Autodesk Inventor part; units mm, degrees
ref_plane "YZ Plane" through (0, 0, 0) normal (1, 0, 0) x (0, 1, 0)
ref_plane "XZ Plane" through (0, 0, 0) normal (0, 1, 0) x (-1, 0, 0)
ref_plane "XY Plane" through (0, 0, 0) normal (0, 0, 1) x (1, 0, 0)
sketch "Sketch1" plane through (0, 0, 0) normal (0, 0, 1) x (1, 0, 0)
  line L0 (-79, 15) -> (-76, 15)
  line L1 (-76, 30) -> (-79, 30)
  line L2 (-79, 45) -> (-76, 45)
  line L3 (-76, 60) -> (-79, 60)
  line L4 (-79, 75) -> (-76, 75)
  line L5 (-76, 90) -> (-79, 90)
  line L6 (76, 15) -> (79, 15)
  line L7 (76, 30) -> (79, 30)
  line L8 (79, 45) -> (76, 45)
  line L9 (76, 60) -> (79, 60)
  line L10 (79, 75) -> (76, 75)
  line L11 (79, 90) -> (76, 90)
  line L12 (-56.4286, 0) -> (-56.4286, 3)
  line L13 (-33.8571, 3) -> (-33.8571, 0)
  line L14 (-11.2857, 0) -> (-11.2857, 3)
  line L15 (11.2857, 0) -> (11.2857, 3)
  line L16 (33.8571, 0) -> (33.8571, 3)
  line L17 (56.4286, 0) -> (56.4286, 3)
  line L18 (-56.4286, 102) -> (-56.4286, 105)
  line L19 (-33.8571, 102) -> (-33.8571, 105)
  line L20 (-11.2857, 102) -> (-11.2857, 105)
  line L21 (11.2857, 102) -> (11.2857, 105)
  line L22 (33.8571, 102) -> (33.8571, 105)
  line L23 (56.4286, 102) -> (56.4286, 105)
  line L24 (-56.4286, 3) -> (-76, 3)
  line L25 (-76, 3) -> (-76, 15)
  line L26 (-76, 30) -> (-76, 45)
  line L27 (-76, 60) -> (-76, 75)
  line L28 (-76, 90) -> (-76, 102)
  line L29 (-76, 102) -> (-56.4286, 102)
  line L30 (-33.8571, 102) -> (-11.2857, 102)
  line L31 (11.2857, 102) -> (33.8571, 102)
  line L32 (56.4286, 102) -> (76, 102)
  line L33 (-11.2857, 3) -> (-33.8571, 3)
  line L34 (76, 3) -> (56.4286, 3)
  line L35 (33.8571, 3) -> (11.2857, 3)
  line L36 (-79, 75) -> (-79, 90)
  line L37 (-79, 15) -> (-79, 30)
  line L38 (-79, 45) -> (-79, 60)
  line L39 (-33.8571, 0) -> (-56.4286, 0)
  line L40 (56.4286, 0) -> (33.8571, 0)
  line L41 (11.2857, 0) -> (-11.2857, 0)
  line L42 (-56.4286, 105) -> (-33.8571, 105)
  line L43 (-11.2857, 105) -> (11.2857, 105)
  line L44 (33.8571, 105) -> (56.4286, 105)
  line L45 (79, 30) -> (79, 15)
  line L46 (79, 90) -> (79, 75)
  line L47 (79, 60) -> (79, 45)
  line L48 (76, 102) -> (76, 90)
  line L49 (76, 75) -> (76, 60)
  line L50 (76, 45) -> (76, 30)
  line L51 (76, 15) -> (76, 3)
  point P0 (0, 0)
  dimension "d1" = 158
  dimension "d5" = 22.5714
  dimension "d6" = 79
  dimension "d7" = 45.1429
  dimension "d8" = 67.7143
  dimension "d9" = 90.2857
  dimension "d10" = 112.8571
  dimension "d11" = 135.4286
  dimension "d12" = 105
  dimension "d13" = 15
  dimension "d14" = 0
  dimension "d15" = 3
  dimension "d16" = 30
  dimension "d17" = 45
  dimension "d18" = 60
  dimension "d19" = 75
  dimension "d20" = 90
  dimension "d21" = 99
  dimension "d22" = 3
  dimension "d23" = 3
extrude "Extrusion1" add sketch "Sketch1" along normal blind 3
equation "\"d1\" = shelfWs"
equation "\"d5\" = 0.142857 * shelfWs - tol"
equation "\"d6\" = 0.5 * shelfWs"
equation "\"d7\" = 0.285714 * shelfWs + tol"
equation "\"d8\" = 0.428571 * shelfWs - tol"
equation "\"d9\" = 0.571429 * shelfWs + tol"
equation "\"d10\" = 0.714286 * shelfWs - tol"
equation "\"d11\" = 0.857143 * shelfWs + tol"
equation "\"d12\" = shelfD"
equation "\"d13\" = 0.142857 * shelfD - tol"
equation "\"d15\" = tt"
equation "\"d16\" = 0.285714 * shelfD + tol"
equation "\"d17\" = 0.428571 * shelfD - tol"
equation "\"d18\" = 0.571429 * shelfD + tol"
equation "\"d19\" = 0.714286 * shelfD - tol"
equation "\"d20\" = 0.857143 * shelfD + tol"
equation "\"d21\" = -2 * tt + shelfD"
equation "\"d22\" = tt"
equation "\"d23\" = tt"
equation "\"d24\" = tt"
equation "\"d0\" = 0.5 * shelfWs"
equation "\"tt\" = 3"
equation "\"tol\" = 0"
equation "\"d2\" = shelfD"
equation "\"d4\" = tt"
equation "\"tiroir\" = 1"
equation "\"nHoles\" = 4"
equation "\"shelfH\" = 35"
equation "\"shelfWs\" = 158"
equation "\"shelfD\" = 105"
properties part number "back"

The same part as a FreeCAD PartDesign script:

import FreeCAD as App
import Part
import Sketcher
Q = App.Units.Quantity


def add_polygon(sketch, points):
    """Adds a closed chain of lines whose ends are joined by coincident constraints."""
    first, n = sketch.GeometryCount, len(points)
    for a, b in zip(points, points[1:] + points[:1]):
        sketch.addGeometry(Part.LineSegment(App.Vector(*a, 0), App.Vector(*b, 0)), False)
    for i in range(n):
        sketch.addConstraint(Sketcher.Constraint("Coincident", first + i, 2, first + (i + 1) % n, 1))

doc = App.newDocument("Part")
body = doc.addObject("PartDesign::Body", "Body")

# Sketch on XY plane
sketch1 = body.newObject("Sketcher::SketchObject", "Sketch")
sketch1.AttachmentSupport = (doc.getObject("XY_Plane"), [""])
sketch1.MapMode = "FlatFace"
add_polygon(sketch1, [(-79, 30), (-79, 15), (-76, 15), (-76, 3), (-56.4286, 3), (-56.4286, 0), (-33.8571, 0), (-33.8571, 3), (-11.2857, 3), (-11.2857, 0), (11.2857, 0), (11.2857, 3), (33.8571, 3), (33.8571, 0), (56.4286, 0), (56.4286, 3), (76, 3), (76, 15), (79, 15), (79, 30), (76, 30), (76, 45), (79, 45), (79, 60), (76, 60), (76, 75), (79, 75), (79, 90), (76, 90), (76, 102), (56.4286, 102), (56.4286, 105), (33.8571, 105), (33.8571, 102), (11.2857, 102), (11.2857, 105), (-11.2857, 105), (-11.2857, 102), (-33.8571, 102), (-33.8571, 105), (-56.4286, 105), (-56.4286, 102), (-76, 102), (-76, 90), (-79, 90), (-79, 75), (-76, 75), (-76, 60), (-79, 60), (-79, 45), (-76, 45), (-76, 30)])  # lines 0-51
sketch1.addConstraint([
    Sketcher.Constraint("Vertical", 0),
    Sketcher.Constraint("Horizontal", 1),
    Sketcher.Constraint("Vertical", 2),
    Sketcher.Constraint("Horizontal", 3),
    Sketcher.Constraint("Vertical", 4),
    Sketcher.Constraint("Horizontal", 5),
    Sketcher.Constraint("Vertical", 6),
    Sketcher.Constraint("Horizontal", 7),
    Sketcher.Constraint("Vertical", 8),
    Sketcher.Constraint("Horizontal", 9),
    Sketcher.Constraint("Vertical", 10),
    Sketcher.Constraint("Horizontal", 11),
    Sketcher.Constraint("Vertical", 12),
    Sketcher.Constraint("Horizontal", 13),
    Sketcher.Constraint("Vertical", 14),
    Sketcher.Constraint("Horizontal", 15),
    Sketcher.Constraint("Vertical", 16),
    Sketcher.Constraint("Horizontal", 17),
    Sketcher.Constraint("Vertical", 18),
    Sketcher.Constraint("Horizontal", 19),
    Sketcher.Constraint("Vertical", 20),
    Sketcher.Constraint("Horizontal", 21),
    Sketcher.Constraint("Vertical", 22),
    Sketcher.Constraint("Horizontal", 23),
    Sketcher.Constraint("Vertical", 24),
    Sketcher.Constraint("Horizontal", 25),
    Sketcher.Constraint("Vertical", 26),
    Sketcher.Constraint("Horizontal", 27),
    Sketcher.Constraint("Vertical", 28),
    Sketcher.Constraint("Horizontal", 29),
    Sketcher.Constraint("Vertical", 30),
    Sketcher.Constraint("Horizontal", 31),
    Sketcher.Constraint("Vertical", 32),
    Sketcher.Constraint("Horizontal", 33),
    Sketcher.Constraint("Vertical", 34),
    Sketcher.Constraint("Horizontal", 35),
    Sketcher.Constraint("Vertical", 36),
    Sketcher.Constraint("Horizontal", 37),
    Sketcher.Constraint("Vertical", 38),
    Sketcher.Constraint("Horizontal", 39),
    Sketcher.Constraint("Vertical", 40),
    Sketcher.Constraint("Horizontal", 41),
    Sketcher.Constraint("Vertical", 42),
    Sketcher.Constraint("Horizontal", 43),
    Sketcher.Constraint("Vertical", 44),
    Sketcher.Constraint("Horizontal", 45),
    Sketcher.Constraint("Vertical", 46),
    Sketcher.Constraint("Horizontal", 47),
    Sketcher.Constraint("Vertical", 48),
    Sketcher.Constraint("Horizontal", 49),
    Sketcher.Constraint("Vertical", 50),
    Sketcher.Constraint("Horizontal", 51),
    Sketcher.Constraint("Symmetric", 8, 2, 9, 2, -1, 1),
    Sketcher.Constraint("Symmetric", 5, 2, 12, 2, -1, 1),
    Sketcher.Constraint("Symmetric", 4, 2, 13, 2, -2),
    Sketcher.Constraint("Symmetric", 2, 2, 15, 2, -2),
    Sketcher.Constraint("Symmetric", 0, 2, 17, 2, -2),
    Sketcher.Constraint("Symmetric", 33, 2, 36, 2, -2),
    Sketcher.Constraint("Symmetric", 31, 2, 38, 2, -2),
    Sketcher.Constraint("Symmetric", 29, 2, 40, 2, -2),
    Sketcher.Constraint("Symmetric", 27, 2, 42, 2, -2),
    Sketcher.Constraint("Symmetric", 25, 2, 44, 2, -2),
    Sketcher.Constraint("Symmetric", 23, 2, 46, 2, -2),
    Sketcher.Constraint("Symmetric", 21, 2, 48, 2, -2),
    Sketcher.Constraint("Symmetric", 19, 2, 50, 2, -2),
    Sketcher.Constraint("Horizontal", 3, 2, 6, 2),
    Sketcher.Constraint("Horizontal", 7, 2, 10, 2),
    Sketcher.Constraint("Horizontal", 29, 2, 32, 2),
    Sketcher.Constraint("Horizontal", 31, 2, 34, 2),
    Sketcher.Constraint("Vertical", 16, 2, 19, 2),
    Sketcher.Constraint("Vertical", 18, 2, 21, 2),
    Sketcher.Constraint("Vertical", 20, 2, 23, 2),
    Sketcher.Constraint("Vertical", 22, 2, 25, 2),
    Sketcher.Constraint("Vertical", 24, 2, 27, 2),
    Sketcher.Constraint("Vertical", 14, 2, 29, 2),
    Sketcher.Constraint("Vertical", 12, 2, 31, 2),
    Sketcher.Constraint("Vertical", 10, 2, 33, 2),
    Sketcher.Constraint("Equal", 5, 7),
    Sketcher.Constraint("Equal", 7, 9),
    Sketcher.Constraint("Equal", 51, 4),
    Sketcher.Constraint("Equal", 18, 20),
    Sketcher.Constraint("Equal", 20, 22),
    Sketcher.Constraint("Equal", 22, 24),
    Sketcher.Constraint("Equal", 24, 26),
    Sketcher.Constraint("Equal", 16, 28),
    Sketcher.Constraint("Equal", 14, 30),
    Sketcher.Constraint("DistanceX", 1, 1, 1, 2, Q("3 mm")),
    Sketcher.Constraint("DistanceY", 0, 2, 0, 1, Q("15 mm")),
    Sketcher.Constraint("DistanceX", 0, 2, -1, 1, Q("79 mm")),
    Sketcher.Constraint("DistanceY", -1, 1, 0, 2, Q("15 mm")),
    Sketcher.Constraint("DistanceX", 5, 1, 5, 2, Q("22.5715 mm")),
])
pad1 = body.newObject("PartDesign::Pad", "Pad")
pad1.Profile = sketch1
pad1.Length = 3

doc.recompute()
